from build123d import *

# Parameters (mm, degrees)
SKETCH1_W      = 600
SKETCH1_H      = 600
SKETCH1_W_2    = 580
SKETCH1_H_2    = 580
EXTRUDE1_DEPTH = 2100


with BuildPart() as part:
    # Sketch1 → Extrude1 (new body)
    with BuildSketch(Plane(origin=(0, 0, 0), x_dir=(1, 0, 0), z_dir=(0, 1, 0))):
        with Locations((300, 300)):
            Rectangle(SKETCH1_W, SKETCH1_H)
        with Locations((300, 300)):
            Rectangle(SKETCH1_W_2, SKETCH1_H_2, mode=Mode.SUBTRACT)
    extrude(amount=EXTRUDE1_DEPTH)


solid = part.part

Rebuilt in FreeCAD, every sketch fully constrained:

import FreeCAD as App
import Part
import Sketcher

V = App.Vector
Q = App.Units.Quantity

doc = App.newDocument("Part")
body = doc.addObject("PartDesign::Body", "Body")

sketch1 = body.newObject("Sketcher::SketchObject", "Sketch")
sketch1.AttachmentSupport = (doc.getObject("XZ_Plane"), [""])
sketch1.MapMode = "FlatFace"
sketch1.addGeometry([
    Part.LineSegment(V(0, -600, 0), V(0, 0, 0)),
    Part.LineSegment(V(0, 0, 0), V(600, 0, 0)),
    Part.LineSegment(V(600, 0, 0), V(600, -600, 0)),
    Part.LineSegment(V(600, -600, 0), V(0, -600, 0)),
    Part.LineSegment(V(590, -10, 0), V(10, -10, 0)),
    Part.LineSegment(V(10, -10, 0), V(10, -590, 0)),
    Part.LineSegment(V(10, -590, 0), V(590, -590, 0)),
    Part.LineSegment(V(590, -590, 0), V(590, -10, 0)),
], False)
sketch1.addConstraint([
    Sketcher.Constraint("Coincident", 0, 2, 1, 1),
    Sketcher.Constraint("Coincident", 1, 2, 2, 1),
    Sketcher.Constraint("Coincident", 2, 2, 3, 1),
    Sketcher.Constraint("Coincident", 3, 2, 0, 1),
    Sketcher.Constraint("Coincident", 4, 2, 5, 1),
    Sketcher.Constraint("Coincident", 5, 2, 6, 1),
    Sketcher.Constraint("Coincident", 6, 2, 7, 1),
    Sketcher.Constraint("Coincident", 7, 2, 4, 1),
    Sketcher.Constraint("Vertical", 0),
    Sketcher.Constraint("Horizontal", 1),
    Sketcher.Constraint("Vertical", 2),
    Sketcher.Constraint("Horizontal", 3),
    Sketcher.Constraint("Horizontal", 4),
    Sketcher.Constraint("Vertical", 5),
    Sketcher.Constraint("Horizontal", 6),
    Sketcher.Constraint("Vertical", 7),
    Sketcher.Constraint("Coincident", 0, 2, -1, 1),
    Sketcher.Constraint("Equal", 3, 0),
    Sketcher.Constraint("Equal", 6, 5),
    Sketcher.Constraint("DistanceX", 1, 1, 1, 2, Q("600 mm")),
    Sketcher.Constraint("DistanceX", 4, 2, 4, 1, Q("580 mm")),
    Sketcher.Constraint("DistanceX", -1, 1, 4, 2, Q("10 mm")),
    Sketcher.Constraint("DistanceY", 4, 2, -1, 1, Q("10 mm")),
])
pad1 = body.newObject("PartDesign::Pad", "Pad")
pad1.Profile = sketch1
pad1.Length = 2100
pad1.Reversed = True

doc.recompute()
